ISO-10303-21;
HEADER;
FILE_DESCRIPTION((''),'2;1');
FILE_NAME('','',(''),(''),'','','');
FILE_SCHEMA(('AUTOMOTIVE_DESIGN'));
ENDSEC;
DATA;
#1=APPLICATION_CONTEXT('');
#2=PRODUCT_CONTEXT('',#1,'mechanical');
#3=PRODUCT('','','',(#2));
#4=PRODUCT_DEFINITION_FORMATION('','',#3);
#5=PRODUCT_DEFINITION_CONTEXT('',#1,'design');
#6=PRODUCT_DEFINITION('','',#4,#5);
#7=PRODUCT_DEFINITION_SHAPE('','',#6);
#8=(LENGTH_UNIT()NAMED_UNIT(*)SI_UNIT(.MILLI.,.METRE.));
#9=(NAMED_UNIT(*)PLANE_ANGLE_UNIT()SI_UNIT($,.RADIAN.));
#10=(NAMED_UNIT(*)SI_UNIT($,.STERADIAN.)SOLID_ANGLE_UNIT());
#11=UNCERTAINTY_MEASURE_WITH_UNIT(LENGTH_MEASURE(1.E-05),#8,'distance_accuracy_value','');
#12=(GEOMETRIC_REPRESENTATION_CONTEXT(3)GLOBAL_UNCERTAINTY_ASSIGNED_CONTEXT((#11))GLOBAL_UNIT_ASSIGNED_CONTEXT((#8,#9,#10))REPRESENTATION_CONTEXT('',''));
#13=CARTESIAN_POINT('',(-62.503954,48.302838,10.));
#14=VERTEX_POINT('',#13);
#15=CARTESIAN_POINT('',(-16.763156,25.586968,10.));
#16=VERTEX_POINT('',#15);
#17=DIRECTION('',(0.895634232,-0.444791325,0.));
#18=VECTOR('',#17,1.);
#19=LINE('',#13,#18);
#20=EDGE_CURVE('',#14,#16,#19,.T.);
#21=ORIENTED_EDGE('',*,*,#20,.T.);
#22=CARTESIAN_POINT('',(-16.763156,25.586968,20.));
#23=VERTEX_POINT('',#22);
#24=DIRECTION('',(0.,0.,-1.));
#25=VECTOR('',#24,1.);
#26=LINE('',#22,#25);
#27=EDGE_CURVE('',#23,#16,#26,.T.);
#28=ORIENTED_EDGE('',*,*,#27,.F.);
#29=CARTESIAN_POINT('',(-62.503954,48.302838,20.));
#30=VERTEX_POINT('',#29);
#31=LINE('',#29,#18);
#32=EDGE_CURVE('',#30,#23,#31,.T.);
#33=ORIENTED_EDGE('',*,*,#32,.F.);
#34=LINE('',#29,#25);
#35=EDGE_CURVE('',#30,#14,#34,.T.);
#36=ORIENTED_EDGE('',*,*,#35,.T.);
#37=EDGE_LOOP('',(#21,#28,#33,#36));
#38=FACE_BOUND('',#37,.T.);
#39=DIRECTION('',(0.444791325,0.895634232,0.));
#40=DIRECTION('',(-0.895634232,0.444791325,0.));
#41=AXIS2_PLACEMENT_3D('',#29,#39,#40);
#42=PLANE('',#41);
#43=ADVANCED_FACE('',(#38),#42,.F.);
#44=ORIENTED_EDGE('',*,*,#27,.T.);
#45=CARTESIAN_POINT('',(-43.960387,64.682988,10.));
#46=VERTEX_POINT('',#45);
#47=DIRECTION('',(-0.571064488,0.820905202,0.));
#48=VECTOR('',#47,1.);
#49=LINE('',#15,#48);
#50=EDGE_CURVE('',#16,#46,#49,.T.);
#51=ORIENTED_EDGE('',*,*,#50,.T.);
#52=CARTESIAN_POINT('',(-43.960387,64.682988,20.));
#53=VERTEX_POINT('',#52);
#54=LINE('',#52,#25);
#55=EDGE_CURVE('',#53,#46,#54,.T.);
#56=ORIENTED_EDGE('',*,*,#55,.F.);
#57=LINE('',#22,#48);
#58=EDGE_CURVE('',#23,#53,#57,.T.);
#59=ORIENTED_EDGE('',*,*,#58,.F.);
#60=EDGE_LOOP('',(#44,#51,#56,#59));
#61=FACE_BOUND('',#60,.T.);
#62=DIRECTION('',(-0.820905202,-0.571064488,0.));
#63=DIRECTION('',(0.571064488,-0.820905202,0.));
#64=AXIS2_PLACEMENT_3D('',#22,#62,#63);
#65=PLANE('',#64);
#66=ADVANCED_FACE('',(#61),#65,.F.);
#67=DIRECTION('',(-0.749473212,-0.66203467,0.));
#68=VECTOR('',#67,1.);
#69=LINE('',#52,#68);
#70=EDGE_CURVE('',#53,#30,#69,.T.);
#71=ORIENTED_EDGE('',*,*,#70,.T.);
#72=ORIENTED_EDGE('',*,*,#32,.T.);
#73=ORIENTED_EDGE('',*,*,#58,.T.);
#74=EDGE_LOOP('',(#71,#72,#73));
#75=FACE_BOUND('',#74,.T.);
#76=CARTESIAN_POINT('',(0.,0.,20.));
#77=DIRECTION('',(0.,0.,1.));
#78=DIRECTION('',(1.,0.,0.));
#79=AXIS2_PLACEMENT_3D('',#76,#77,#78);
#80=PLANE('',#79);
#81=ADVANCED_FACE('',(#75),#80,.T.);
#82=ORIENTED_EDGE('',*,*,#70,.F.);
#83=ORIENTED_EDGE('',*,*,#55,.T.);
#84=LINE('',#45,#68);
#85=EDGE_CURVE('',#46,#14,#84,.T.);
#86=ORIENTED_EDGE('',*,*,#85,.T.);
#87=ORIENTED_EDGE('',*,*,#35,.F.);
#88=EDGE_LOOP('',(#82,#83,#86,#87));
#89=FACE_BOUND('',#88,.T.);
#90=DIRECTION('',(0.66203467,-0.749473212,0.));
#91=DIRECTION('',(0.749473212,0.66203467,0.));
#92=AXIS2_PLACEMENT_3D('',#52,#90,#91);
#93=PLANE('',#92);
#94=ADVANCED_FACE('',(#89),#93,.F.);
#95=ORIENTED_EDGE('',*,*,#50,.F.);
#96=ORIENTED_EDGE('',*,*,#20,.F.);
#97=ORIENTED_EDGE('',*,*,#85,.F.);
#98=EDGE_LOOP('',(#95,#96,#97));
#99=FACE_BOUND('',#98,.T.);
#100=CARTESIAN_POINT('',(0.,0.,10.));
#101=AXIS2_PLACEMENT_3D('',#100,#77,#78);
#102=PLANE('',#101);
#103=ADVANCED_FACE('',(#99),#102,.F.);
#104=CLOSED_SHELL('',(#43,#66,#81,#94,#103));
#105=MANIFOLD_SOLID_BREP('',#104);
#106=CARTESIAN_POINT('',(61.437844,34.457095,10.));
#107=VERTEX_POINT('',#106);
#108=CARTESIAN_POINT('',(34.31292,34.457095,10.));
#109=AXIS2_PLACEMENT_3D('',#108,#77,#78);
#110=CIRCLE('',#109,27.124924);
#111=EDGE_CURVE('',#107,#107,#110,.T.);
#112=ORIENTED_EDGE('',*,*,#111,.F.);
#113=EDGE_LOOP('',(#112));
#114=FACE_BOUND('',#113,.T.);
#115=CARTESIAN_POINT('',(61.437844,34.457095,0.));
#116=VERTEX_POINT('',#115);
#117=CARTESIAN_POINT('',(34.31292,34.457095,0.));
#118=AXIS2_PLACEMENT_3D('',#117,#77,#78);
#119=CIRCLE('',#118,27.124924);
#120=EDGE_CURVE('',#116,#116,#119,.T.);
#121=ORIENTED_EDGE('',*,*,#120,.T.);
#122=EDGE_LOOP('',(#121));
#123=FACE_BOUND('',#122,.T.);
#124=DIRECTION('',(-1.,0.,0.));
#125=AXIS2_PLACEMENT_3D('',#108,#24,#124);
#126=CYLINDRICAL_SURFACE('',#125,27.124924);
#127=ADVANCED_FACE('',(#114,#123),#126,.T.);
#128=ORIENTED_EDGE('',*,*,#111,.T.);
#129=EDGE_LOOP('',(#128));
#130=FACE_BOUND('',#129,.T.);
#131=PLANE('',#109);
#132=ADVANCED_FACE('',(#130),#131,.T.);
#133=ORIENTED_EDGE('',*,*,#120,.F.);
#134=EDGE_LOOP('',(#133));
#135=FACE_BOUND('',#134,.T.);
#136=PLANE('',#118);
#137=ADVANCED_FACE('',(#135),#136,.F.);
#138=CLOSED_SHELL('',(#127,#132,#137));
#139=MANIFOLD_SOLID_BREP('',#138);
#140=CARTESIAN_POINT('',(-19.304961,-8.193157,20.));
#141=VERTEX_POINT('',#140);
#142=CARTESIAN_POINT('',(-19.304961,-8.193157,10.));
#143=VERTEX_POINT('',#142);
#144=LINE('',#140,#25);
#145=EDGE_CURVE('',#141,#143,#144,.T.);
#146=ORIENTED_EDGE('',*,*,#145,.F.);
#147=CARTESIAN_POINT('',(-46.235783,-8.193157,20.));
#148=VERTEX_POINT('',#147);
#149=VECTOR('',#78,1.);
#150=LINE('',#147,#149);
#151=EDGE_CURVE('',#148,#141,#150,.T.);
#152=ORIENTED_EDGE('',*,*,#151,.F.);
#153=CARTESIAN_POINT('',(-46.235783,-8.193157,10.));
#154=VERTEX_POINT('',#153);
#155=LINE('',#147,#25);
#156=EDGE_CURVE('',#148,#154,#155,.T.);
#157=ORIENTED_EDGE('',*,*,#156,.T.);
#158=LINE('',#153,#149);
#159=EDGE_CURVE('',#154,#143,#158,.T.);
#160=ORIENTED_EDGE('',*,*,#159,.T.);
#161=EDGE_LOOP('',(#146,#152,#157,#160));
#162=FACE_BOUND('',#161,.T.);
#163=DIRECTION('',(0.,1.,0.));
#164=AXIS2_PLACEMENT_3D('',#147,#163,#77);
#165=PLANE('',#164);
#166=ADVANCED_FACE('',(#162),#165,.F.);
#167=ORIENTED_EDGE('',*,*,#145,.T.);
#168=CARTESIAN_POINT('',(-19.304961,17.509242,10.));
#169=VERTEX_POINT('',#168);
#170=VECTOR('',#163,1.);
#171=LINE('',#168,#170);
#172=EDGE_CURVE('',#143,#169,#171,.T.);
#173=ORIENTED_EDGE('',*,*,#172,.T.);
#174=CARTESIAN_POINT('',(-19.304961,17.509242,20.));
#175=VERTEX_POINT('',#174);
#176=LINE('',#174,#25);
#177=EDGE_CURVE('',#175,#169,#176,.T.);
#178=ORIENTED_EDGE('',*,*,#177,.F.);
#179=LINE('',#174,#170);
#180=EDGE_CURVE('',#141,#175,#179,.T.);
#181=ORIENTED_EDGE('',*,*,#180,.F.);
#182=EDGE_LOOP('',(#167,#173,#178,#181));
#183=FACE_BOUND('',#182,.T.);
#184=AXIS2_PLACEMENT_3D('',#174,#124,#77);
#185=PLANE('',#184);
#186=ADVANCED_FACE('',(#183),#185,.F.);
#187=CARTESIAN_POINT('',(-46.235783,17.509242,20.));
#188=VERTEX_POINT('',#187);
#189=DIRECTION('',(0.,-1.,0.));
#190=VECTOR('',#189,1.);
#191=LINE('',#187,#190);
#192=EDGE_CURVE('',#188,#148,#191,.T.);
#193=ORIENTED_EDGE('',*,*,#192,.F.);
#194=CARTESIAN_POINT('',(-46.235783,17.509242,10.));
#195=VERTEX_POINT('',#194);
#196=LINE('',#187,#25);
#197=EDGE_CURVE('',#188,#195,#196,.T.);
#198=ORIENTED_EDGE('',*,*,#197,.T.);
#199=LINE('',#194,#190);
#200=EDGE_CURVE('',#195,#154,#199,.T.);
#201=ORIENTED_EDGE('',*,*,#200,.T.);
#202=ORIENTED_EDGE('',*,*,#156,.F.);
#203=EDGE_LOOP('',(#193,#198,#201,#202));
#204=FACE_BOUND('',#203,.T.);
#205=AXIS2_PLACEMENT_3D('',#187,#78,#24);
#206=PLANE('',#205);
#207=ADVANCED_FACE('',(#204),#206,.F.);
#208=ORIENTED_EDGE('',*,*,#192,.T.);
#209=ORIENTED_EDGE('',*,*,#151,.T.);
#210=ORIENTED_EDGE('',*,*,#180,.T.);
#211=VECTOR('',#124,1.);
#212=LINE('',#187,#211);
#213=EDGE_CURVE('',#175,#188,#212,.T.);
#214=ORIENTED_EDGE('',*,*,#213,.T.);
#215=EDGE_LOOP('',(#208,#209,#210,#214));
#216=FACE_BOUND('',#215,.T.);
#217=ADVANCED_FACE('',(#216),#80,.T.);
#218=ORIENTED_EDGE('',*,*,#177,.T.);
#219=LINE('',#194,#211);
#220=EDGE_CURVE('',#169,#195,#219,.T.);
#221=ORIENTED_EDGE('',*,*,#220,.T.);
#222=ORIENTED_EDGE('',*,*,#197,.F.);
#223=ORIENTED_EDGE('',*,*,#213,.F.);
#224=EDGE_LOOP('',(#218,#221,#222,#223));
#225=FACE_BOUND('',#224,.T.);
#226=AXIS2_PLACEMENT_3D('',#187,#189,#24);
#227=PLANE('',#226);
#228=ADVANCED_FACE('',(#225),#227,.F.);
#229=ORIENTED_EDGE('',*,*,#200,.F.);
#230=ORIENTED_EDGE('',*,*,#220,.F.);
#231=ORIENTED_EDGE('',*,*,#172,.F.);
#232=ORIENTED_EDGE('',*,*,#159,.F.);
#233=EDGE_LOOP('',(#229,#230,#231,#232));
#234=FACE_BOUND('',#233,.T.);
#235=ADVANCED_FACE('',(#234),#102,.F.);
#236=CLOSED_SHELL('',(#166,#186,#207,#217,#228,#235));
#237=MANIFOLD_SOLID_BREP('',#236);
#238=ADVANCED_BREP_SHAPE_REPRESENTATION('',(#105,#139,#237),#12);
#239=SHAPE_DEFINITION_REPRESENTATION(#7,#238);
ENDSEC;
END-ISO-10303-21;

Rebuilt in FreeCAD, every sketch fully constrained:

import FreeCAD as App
import Part
import Sketcher
from FreeCAD import Vector
Q = App.Units.Quantity

doc = App.newDocument("Part")
params = doc.addObject("Spreadsheet::Sheet", "Params")
for row, (alias, value) in enumerate([
    ("pad1_length", "10 mm"),
    ("pad2_length", "10 mm"),
    ("pad3_length", "10 mm"),
], start=1):
    params.set(f"A{row}", alias)
    params.set(f"B{row}", "=" + value)
    params.setAlias(f"B{row}", alias)

body = doc.addObject("PartDesign::Body", "Body")

# Sketch on XY plane
sketch1 = doc.addObject("Sketcher::SketchObject", "Sketch")
body.addObject(sketch1)
sketch1.AttachmentSupport = (doc.XY_Plane, [""])
sketch1.MapMode = "FlatFace"
sketch1.addGeometry(Part.Circle(Vector(34, 34, 0), Vector(0, 0, 1), 27), False)
sketch1.addConstraint([
    Sketcher.Constraint("Diameter", 0, Q("54.249849 mm")),
    Sketcher.Constraint("DistanceX", -1, 1, 0, 3, Q("34.31292 mm")),
    Sketcher.Constraint("DistanceY", -1, 1, 0, 3, Q("34.457095 mm")),
])
pad1 = doc.addObject("PartDesign::Pad", "Pad")
body.addObject(pad1)
pad1.Profile = sketch1
pad1.setExpression("Length", "Params.pad1_length")
body2 = doc.addObject("PartDesign::Body", "Body001")

# Sketch on XY plane
sketch2 = doc.addObject("Sketcher::SketchObject", "Sketch001")
body2.addObject(sketch2)
sketch2.AttachmentSupport = (doc.getObject("XY_Plane001"), [""])
sketch2.MapMode = "FlatFace"
sketch2.AttachmentOffset = App.Placement(Vector(0, 0, 10), App.Rotation())
sketch2.addGeometry([
    Part.LineSegment(Vector(-46, 18, 0), Vector(-46, -8, 0)),
    Part.LineSegment(Vector(-46, -8, 0), Vector(-19, -8, 0)),
    Part.LineSegment(Vector(-19, -8, 0), Vector(-19, 18, 0)),
    Part.LineSegment(Vector(-19, 18, 0), Vector(-46, 18, 0)),
], False)
sketch2.addConstraint([
    Sketcher.Constraint("Coincident", 0, 2, 1, 1),
    Sketcher.Constraint("Coincident", 1, 2, 2, 1),
    Sketcher.Constraint("Coincident", 2, 2, 3, 1),
    Sketcher.Constraint("Coincident", 3, 2, 0, 1),
    Sketcher.Constraint("Vertical", 0),
    Sketcher.Constraint("Horizontal", 1),
    Sketcher.Constraint("Vertical", 2),
    Sketcher.Constraint("Horizontal", 3),
    Sketcher.Constraint("DistanceY", 0, 2, 0, 1, Q("25.702399 mm")),
    Sketcher.Constraint("DistanceX", 1, 1, 1, 2, Q("26.930822 mm")),
    Sketcher.Constraint("DistanceX", 1, 2, -1, 1, Q("19.304961 mm")),
    Sketcher.Constraint("DistanceY", -1, 1, 2, 2, Q("17.509242 mm")),
])
pad2 = doc.addObject("PartDesign::Pad", "Pad001")
body2.addObject(pad2)
pad2.Profile = sketch2
pad2.setExpression("Length", "Params.pad2_length")
body3 = doc.addObject("PartDesign::Body", "Body002")

# Sketch on XY plane
sketch3 = doc.addObject("Sketcher::SketchObject", "Sketch002")
body3.addObject(sketch3)
sketch3.AttachmentSupport = (doc.getObject("XY_Plane002"), [""])
sketch3.MapMode = "FlatFace"
sketch3.AttachmentOffset = App.Placement(Vector(0, 0, 10), App.Rotation())
sketch3.addGeometry([
    Part.LineSegment(Vector(-44, 65, 0), Vector(-63, 48, 0)),
    Part.LineSegment(Vector(-63, 48, 0), Vector(-17, 26, 0)),
    Part.LineSegment(Vector(-17, 26, 0), Vector(-44, 65, 0)),
], False)
sketch3.addConstraint([
    Sketcher.Constraint("Coincident", 0, 2, 1, 1),
    Sketcher.Constraint("Coincident", 1, 2, 2, 1),
    Sketcher.Constraint("Coincident", 2, 2, 0, 1),
    Sketcher.Constraint("Angle", 1, Q("-26.409989 deg")),
    Sketcher.Constraint("Distance", 2, Q("47.625499 mm")),
    Sketcher.Constraint("DistanceY", -1, 1, 1, 2, Q("25.586968 mm")),
    Sketcher.Constraint("DistanceY", -1, 1, 2, 2, Q("64.682988 mm")),
    Sketcher.Constraint("DistanceY", 1, 2, 0, 2, Q("22.715869 mm")),
    Sketcher.Constraint("DistanceX", 0, 2, -1, 1, Q("62.503954 mm")),
])
pad3 = doc.addObject("PartDesign::Pad", "Pad002")
body3.addObject(pad3)
pad3.Profile = sketch3
pad3.setExpression("Length", "Params.pad3_length")

doc.recompute()
